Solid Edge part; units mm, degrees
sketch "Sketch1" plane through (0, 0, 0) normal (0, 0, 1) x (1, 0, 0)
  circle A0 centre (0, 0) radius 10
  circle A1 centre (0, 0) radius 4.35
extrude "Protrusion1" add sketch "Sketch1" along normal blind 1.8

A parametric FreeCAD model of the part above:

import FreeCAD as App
import Part
import Sketcher

V = App.Vector

doc = App.newDocument("Part")
body = doc.addObject("PartDesign::Body", "Body")

sketch1 = body.newObject("Sketcher::SketchObject", "Sketch")
sketch1.AttachmentSupport = (doc.getObject("XY_Plane"), [""])
sketch1.MapMode = "FlatFace"
sketch1.addGeometry([
    Part.Circle(V(0, 0, 0), V(0, 0, 1), 10),
    Part.Circle(V(0, 0, 0), V(0, 0, 1), 4.3),
], False)
sketch1.addConstraint([
    Sketcher.Constraint("Coincident", 0, 3, -1, 1),
    Sketcher.Constraint("Coincident", 1, 3, -1, 1),
    Sketcher.Constraint("Diameter", 0, 20.0),
    Sketcher.Constraint("Diameter", 1, 8.7),
])
pad1 = body.newObject("PartDesign::Pad", "Pad")
pad1.Profile = sketch1
pad1.Length = 1.8

doc.recompute()
